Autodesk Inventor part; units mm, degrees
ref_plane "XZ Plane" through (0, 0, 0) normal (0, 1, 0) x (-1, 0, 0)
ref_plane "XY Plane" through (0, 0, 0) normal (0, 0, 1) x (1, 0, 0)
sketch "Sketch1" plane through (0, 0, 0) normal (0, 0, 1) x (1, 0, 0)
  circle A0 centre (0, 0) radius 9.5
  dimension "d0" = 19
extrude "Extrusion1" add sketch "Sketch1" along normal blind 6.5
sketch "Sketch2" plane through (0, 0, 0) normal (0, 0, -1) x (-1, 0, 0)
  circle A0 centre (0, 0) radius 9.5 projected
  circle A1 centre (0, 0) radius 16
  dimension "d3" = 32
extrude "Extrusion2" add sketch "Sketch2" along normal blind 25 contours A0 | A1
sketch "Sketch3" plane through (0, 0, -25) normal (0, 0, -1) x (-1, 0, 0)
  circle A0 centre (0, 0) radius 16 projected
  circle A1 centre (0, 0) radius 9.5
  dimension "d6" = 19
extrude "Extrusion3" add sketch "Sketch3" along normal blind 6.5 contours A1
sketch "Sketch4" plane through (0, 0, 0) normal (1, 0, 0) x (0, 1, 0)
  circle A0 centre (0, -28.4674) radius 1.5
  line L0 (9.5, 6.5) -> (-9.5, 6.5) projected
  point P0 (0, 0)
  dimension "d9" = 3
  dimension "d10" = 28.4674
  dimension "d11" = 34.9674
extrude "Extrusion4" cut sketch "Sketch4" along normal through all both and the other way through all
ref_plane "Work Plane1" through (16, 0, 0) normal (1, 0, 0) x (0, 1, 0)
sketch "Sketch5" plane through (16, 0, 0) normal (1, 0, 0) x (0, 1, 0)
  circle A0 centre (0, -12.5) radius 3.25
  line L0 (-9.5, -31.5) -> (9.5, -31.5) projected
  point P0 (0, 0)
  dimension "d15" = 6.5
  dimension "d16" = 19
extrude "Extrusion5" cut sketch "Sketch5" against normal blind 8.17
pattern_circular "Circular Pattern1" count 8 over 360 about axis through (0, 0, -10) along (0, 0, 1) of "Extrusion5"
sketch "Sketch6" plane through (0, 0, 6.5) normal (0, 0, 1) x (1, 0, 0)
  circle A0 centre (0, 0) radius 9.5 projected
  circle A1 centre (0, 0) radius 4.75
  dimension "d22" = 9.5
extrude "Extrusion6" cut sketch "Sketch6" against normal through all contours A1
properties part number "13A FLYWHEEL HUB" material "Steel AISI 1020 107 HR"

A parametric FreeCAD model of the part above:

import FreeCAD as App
import Part
import Sketcher

doc = App.newDocument("Part")
body = doc.addObject("PartDesign::Body", "Body")

# Sketch on XY plane
sketch1 = body.newObject("Sketcher::SketchObject", "Sketch")
sketch1.AttachmentSupport = (doc.getObject("XY_Plane"), [""])
sketch1.MapMode = "FlatFace"
sketch1.addGeometry(Part.Circle(App.Vector(0, 0, 0), App.Vector(0, 0, 1), 9.5), False)
sketch1.addConstraint(Sketcher.Constraint("Coincident", 0, 3, -1, 1))
sketch1.addConstraint(Sketcher.Constraint("Diameter", 0, 19.0))
pad1 = body.newObject("PartDesign::Pad", "Pad")
pad1.Profile = sketch1
pad1.Length = 6.5

# Sketch on XY plane
sketch2 = body.newObject("Sketcher::SketchObject", "Sketch001")
sketch2.AttachmentSupport = (doc.getObject("XY_Plane"), [""])
sketch2.MapMode = "FlatFace"
sketch2.addGeometry(Part.Circle(App.Vector(0, 0, 0), App.Vector(0, 0, 1), 16), False)
sketch2.addConstraint(Sketcher.Constraint("Coincident", 0, 3, -1, 1))
sketch2.addConstraint(Sketcher.Constraint("Diameter", 0, 32.0))
pad2 = body.newObject("PartDesign::Pad", "Pad001")
pad2.Profile = sketch2
pad2.Length = 25
pad2.Reversed = True

# Sketch on XY plane
sketch3 = body.newObject("Sketcher::SketchObject", "Sketch002")
sketch3.AttachmentSupport = (doc.getObject("XY_Plane"), [""])
sketch3.MapMode = "FlatFace"
sketch3.AttachmentOffset = App.Placement(App.Vector(0, 0, -25), App.Rotation())
sketch3.addGeometry(Part.Circle(App.Vector(0, 0, 0), App.Vector(0, 0, 1), 9.5), False)
sketch3.addConstraint(Sketcher.Constraint("Coincident", 0, 3, -1, 1))
sketch3.addConstraint(Sketcher.Constraint("Diameter", 0, 19.0))
pad3 = body.newObject("PartDesign::Pad", "Pad002")
pad3.Profile = sketch3
pad3.Length = 6.5
pad3.Reversed = True

# Sketch on YZ plane
sketch4 = body.newObject("Sketcher::SketchObject", "Sketch003")
sketch4.AttachmentSupport = (doc.getObject("YZ_Plane"), [""])
sketch4.MapMode = "FlatFace"
sketch4.addGeometry(Part.Circle(App.Vector(0, -28.4674, 0), App.Vector(0, 0, 1), 1.5), False)
sketch4.addConstraint(Sketcher.Constraint("PointOnObject", 0, 3, -2))
sketch4.addConstraint(Sketcher.Constraint("Diameter", 0, 3.0))
sketch4.addConstraint(Sketcher.Constraint("DistanceY", 0, 3, -1, 1, 28.4674))
pocket1 = body.newObject("PartDesign::Pocket", "Pocket")
pocket1.Profile = sketch4
pocket1.Type = "ThroughAll"
pocket1.Midplane = True

# Sketch on YZ plane
sketch5 = body.newObject("Sketcher::SketchObject", "Sketch004")
sketch5.AttachmentSupport = (doc.getObject("YZ_Plane"), [""])
sketch5.MapMode = "FlatFace"
sketch5.AttachmentOffset = App.Placement(App.Vector(0, 0, 16), App.Rotation())
sketch5.addGeometry(Part.Circle(App.Vector(0, -12.5, 0), App.Vector(0, 0, 1), 3.25), False)
sketch5.addConstraint(Sketcher.Constraint("PointOnObject", 0, 3, -2))
sketch5.addConstraint(Sketcher.Constraint("Diameter", 0, 6.5))
sketch5.addConstraint(Sketcher.Constraint("DistanceY", 0, 3, -1, 1, 12.5))
pocket2 = body.newObject("PartDesign::Pocket", "Pocket001")
pocket2.Profile = sketch5
pocket2.Length = 8.17
doc.recompute()

polarpattern = body.newObject("PartDesign::PolarPattern", "PolarPattern")
polarpattern.Originals = [pocket2]
polarpattern.Axis = (doc.getObject("Z_Axis"), [""])
polarpattern.Angle = 360
polarpattern.Occurrences = 8
body.Tip = polarpattern

# Sketch on XY plane
sketch6 = body.newObject("Sketcher::SketchObject", "Sketch005")
sketch6.AttachmentSupport = (doc.getObject("XY_Plane"), [""])
sketch6.MapMode = "FlatFace"
sketch6.AttachmentOffset = App.Placement(App.Vector(0, 0, 6.5), App.Rotation())
sketch6.addGeometry(Part.Circle(App.Vector(0, 0, 0), App.Vector(0, 0, 1), 4.75), False)
sketch6.addConstraint(Sketcher.Constraint("Coincident", 0, 3, -1, 1))
sketch6.addConstraint(Sketcher.Constraint("Diameter", 0, 9.5))
pocket3 = body.newObject("PartDesign::Pocket", "Pocket002")
pocket3.Profile = sketch6
pocket3.Type = "ThroughAll"

doc.recompute()
